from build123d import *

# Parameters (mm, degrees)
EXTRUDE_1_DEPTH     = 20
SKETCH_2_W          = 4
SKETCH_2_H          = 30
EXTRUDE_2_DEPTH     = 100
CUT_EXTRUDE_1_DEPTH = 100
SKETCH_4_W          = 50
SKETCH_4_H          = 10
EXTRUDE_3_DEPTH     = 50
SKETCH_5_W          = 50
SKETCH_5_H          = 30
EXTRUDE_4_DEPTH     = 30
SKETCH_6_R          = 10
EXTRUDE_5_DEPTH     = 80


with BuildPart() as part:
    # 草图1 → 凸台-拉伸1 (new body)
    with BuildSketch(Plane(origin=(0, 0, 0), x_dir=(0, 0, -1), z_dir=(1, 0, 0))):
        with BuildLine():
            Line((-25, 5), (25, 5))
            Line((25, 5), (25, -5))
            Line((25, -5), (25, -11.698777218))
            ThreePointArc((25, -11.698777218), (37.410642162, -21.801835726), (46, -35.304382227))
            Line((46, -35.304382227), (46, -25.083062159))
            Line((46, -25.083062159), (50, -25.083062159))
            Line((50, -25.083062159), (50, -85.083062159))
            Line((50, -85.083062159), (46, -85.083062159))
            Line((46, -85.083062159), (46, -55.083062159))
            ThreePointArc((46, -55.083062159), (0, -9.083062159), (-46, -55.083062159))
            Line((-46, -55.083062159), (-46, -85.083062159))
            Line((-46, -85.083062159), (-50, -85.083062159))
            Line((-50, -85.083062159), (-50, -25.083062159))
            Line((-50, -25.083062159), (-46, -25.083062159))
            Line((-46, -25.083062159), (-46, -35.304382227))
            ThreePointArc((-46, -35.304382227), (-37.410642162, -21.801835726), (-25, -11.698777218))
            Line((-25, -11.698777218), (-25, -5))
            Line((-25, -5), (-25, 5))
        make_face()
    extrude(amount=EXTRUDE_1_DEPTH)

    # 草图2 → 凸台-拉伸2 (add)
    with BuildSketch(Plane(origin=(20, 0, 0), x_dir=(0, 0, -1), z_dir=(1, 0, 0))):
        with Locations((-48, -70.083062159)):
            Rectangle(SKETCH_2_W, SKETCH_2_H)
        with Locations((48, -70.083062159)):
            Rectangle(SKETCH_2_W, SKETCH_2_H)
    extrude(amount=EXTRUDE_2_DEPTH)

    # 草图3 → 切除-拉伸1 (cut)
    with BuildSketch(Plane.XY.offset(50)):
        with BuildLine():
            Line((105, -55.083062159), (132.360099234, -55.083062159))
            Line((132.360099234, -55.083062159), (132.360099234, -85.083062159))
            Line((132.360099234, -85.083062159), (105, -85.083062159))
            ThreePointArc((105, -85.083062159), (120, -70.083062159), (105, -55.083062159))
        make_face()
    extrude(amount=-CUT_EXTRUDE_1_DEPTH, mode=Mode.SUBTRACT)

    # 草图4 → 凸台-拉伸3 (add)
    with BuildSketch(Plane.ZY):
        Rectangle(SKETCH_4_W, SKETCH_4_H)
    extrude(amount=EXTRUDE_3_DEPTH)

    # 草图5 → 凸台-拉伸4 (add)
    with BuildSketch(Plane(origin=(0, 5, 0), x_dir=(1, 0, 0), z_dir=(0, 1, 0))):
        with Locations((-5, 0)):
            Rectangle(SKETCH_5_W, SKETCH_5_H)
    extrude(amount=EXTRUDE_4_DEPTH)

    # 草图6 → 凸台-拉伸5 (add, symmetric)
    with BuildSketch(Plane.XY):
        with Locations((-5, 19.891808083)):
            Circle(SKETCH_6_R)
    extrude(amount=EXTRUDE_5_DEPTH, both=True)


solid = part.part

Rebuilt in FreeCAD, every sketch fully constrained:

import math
import FreeCAD as App
import Part
import Sketcher
from FreeCAD import Vector
Q = App.Units.Quantity

doc = App.newDocument("Part")
body = doc.addObject("PartDesign::Body", "Body")

sketch1 = body.newObject("Sketcher::SketchObject", "Sketch")
sketch1.AttachmentSupport = (doc.getObject("YZ_Plane"), [""])
sketch1.MapMode = "FlatFace"
sketch1.addGeometry([
    Part.LineSegment(Vector(5, -25, 0), Vector(5, 25, 0)),
    Part.LineSegment(Vector(5, 25, 0), Vector(-11.7, 25, 0)),
    Part.ArcOfCircle(Part.Circle(Vector(-55.1, 0, 0), Vector(0, 0, 1), 50.1), math.radians(30), math.radians(67)),
    Part.LineSegment(Vector(-35.3, 46, 0), Vector(-25.1, 46, 0)),
    Part.LineSegment(Vector(-25.1, 46, 0), Vector(-25.1, 50, 0)),
    Part.LineSegment(Vector(-25.1, 50, 0), Vector(-85.1, 50, 0)),
    Part.LineSegment(Vector(-85.1, 50, 0), Vector(-85.1, 46, 0)),
    Part.LineSegment(Vector(-85.1, 46, 0), Vector(-55.1, 46, 0)),
    Part.ArcOfCircle(Part.Circle(Vector(-55.1, 0, 0), Vector(0, 0, 1), 46), math.radians(-90), math.radians(90)),
    Part.LineSegment(Vector(-55.1, -46, 0), Vector(-85.1, -46, 0)),
    Part.LineSegment(Vector(-85.1, -46, 0), Vector(-85.1, -50, 0)),
    Part.LineSegment(Vector(-85.1, -50, 0), Vector(-25.1, -50, 0)),
    Part.LineSegment(Vector(-25.1, -50, 0), Vector(-25.1, -46, 0)),
    Part.LineSegment(Vector(-25.1, -46, 0), Vector(-35.3, -46, 0)),
    Part.ArcOfCircle(Part.Circle(Vector(-55.1, 0, 0), Vector(0, 0, 1), 50.1), math.radians(-67), math.radians(-30)),
    Part.LineSegment(Vector(-11.7, -25, 0), Vector(5, -25, 0)),
], False)
sketch1.addConstraint([
    Sketcher.Constraint("Coincident", 0, 2, 1, 1),
    Sketcher.Constraint("Coincident", 1, 2, 2, 1),
    Sketcher.Constraint("Coincident", 2, 2, 3, 1),
    Sketcher.Constraint("Coincident", 3, 2, 4, 1),
    Sketcher.Constraint("Coincident", 4, 2, 5, 1),
    Sketcher.Constraint("Coincident", 5, 2, 6, 1),
    Sketcher.Constraint("Coincident", 6, 2, 7, 1),
    Sketcher.Constraint("Tangent", 7, 2, 8, 2),
    Sketcher.Constraint("Tangent", 8, 1, 9, 1),
    Sketcher.Constraint("Coincident", 9, 2, 10, 1),
    Sketcher.Constraint("Coincident", 10, 2, 11, 1),
    Sketcher.Constraint("Coincident", 11, 2, 12, 1),
    Sketcher.Constraint("Coincident", 12, 2, 13, 1),
    Sketcher.Constraint("Coincident", 13, 2, 14, 1),
    Sketcher.Constraint("Coincident", 14, 2, 15, 1),
    Sketcher.Constraint("Coincident", 15, 2, 0, 1),
    Sketcher.Constraint("Vertical", 0),
    Sketcher.Constraint("Horizontal", 1),
    Sketcher.Constraint("Horizontal", 3),
    Sketcher.Constraint("Vertical", 4),
    Sketcher.Constraint("Horizontal", 5),
    Sketcher.Constraint("Vertical", 6),
    Sketcher.Constraint("Horizontal", 7),
    Sketcher.Constraint("Horizontal", 9),
    Sketcher.Constraint("Vertical", 10),
    Sketcher.Constraint("Horizontal", 11),
    Sketcher.Constraint("Vertical", 12),
    Sketcher.Constraint("Horizontal", 13),
    Sketcher.Constraint("Horizontal", 15),
    Sketcher.Constraint("Coincident", 8, 3, 2, 3),
    Sketcher.Constraint("Coincident", 14, 3, 2, 3),
    Sketcher.Constraint("Equal", 2, 14),
    Sketcher.Constraint("Symmetric", 6, 2, 9, 2, -1),
    Sketcher.Constraint("Symmetric", 4, 2, 11, 2, -1),
    Sketcher.Constraint("Horizontal", 3, 2, 6, 2),
    Sketcher.Constraint("Horizontal", 9, 2, 12, 2),
    Sketcher.Constraint("Vertical", 1, 2, 14, 2),
    Sketcher.Constraint("Radius", 8, Q("46 mm")),
    Sketcher.Constraint("DistanceX", 5, 2, 5, 1, Q("60 mm")),
    Sketcher.Constraint("DistanceX", 7, 1, 7, 2, Q("30 mm")),
    Sketcher.Constraint("DistanceY", 0, 1, 0, 2, Q("50 mm")),
    Sketcher.Constraint("DistanceY", 4, 1, 4, 2, Q("4 mm")),
    Sketcher.Constraint("DistanceX", -1, 1, 0, 2, Q("5 mm")),
    Sketcher.Constraint("Radius", 2, Q("50.07191 mm")),
    Sketcher.Constraint("DistanceX", 1, 2, 1, 1, Q("16.698777 mm")),
])
pad1 = body.newObject("PartDesign::Pad", "Pad")
pad1.Profile = sketch1
pad1.Length = 20

sketch2 = body.newObject("Sketcher::SketchObject", "Sketch001")
sketch2.AttachmentSupport = (doc.getObject("YZ_Plane"), [""])
sketch2.MapMode = "FlatFace"
sketch2.AttachmentOffset = App.Placement(Vector(0, 0, 20), App.Rotation())
sketch2.addGeometry([
    Part.LineSegment(Vector(-55.1, 50, 0), Vector(-85.1, 50, 0)),
    Part.LineSegment(Vector(-85.1, 50, 0), Vector(-85.1, 46, 0)),
    Part.LineSegment(Vector(-85.1, 46, 0), Vector(-55.1, 46, 0)),
    Part.LineSegment(Vector(-55.1, 46, 0), Vector(-55.1, 50, 0)),
    Part.LineSegment(Vector(-55.1, -46, 0), Vector(-85.1, -46, 0)),
    Part.LineSegment(Vector(-85.1, -46, 0), Vector(-85.1, -50, 0)),
    Part.LineSegment(Vector(-85.1, -50, 0), Vector(-55.1, -50, 0)),
    Part.LineSegment(Vector(-55.1, -50, 0), Vector(-55.1, -46, 0)),
], False)
sketch2.addConstraint([
    Sketcher.Constraint("Coincident", 0, 2, 1, 1),
    Sketcher.Constraint("Coincident", 1, 2, 2, 1),
    Sketcher.Constraint("Coincident", 2, 2, 3, 1),
    Sketcher.Constraint("Coincident", 3, 2, 0, 1),
    Sketcher.Constraint("Coincident", 4, 2, 5, 1),
    Sketcher.Constraint("Coincident", 5, 2, 6, 1),
    Sketcher.Constraint("Coincident", 6, 2, 7, 1),
    Sketcher.Constraint("Coincident", 7, 2, 4, 1),
    Sketcher.Constraint("Horizontal", 0),
    Sketcher.Constraint("Vertical", 1),
    Sketcher.Constraint("Horizontal", 2),
    Sketcher.Constraint("Vertical", 3),
    Sketcher.Constraint("Horizontal", 4),
    Sketcher.Constraint("Vertical", 5),
    Sketcher.Constraint("Horizontal", 6),
    Sketcher.Constraint("Vertical", 7),
    Sketcher.Constraint("Symmetric", 1, 2, 4, 2, -1),
    Sketcher.Constraint("Symmetric", 3, 2, 6, 2, -1),
    Sketcher.Constraint("DistanceX", 0, 2, 0, 1, Q("30 mm")),
    Sketcher.Constraint("DistanceY", 1, 2, 1, 1, Q("4 mm")),
    Sketcher.Constraint("DistanceY", -1, 1, 0, 2, Q("50 mm")),
    Sketcher.Constraint("DistanceX", 0, 2, -1, 1, Q("85.083062 mm")),
])
pad2 = body.newObject("PartDesign::Pad", "Pad001")
pad2.Profile = sketch2
pad2.Length = 100

sketch3 = body.newObject("Sketcher::SketchObject", "Sketch002")
sketch3.AttachmentSupport = (doc.getObject("XY_Plane"), [""])
sketch3.MapMode = "FlatFace"
sketch3.AttachmentOffset = App.Placement(Vector(0, 0, 50), App.Rotation())
sketch3.addGeometry([
    Part.LineSegment(Vector(132, -55, 0), Vector(105, -55, 0)),
    Part.ArcOfCircle(Part.Circle(Vector(105, -70, 0), Vector(0, 0, 1), 15), math.radians(-90), math.radians(90)),
    Part.LineSegment(Vector(105, -85, 0), Vector(132, -85, 0)),
    Part.LineSegment(Vector(132, -85, 0), Vector(132, -55, 0)),
], False)
sketch3.addConstraint([
    Sketcher.Constraint("Tangent", 0, 2, 1, 2),
    Sketcher.Constraint("Tangent", 1, 1, 2, 1),
    Sketcher.Constraint("Coincident", 2, 2, 3, 1),
    Sketcher.Constraint("Coincident", 3, 2, 0, 1),
    Sketcher.Constraint("Horizontal", 0),
    Sketcher.Constraint("Horizontal", 2),
    Sketcher.Constraint("Vertical", 3),
    Sketcher.Constraint("Radius", 1, Q("15 mm")),
    Sketcher.Constraint("DistanceX", -1, 1, 1, 3, Q("105 mm")),
    Sketcher.Constraint("DistanceX", 0, 2, 0, 1, Q("27.360099 mm")),
    Sketcher.Constraint("DistanceY", 1, 3, -1, 1, Q("70.083062 mm")),
])
pocket1 = body.newObject("PartDesign::Pocket", "Pocket")
pocket1.Profile = sketch3
pocket1.Length = 100

sketch4 = body.newObject("Sketcher::SketchObject", "Sketch003")
sketch4.AttachmentSupport = (doc.getObject("YZ_Plane"), [""])
sketch4.MapMode = "FlatFace"
sketch4.addGeometry([
    Part.LineSegment(Vector(5, -25, 0), Vector(-5, -25, 0)),
    Part.LineSegment(Vector(-5, -25, 0), Vector(-5, 25, 0)),
    Part.LineSegment(Vector(-5, 25, 0), Vector(5, 25, 0)),
    Part.LineSegment(Vector(5, 25, 0), Vector(5, -25, 0)),
], False)
sketch4.addConstraint([
    Sketcher.Constraint("Coincident", 0, 2, 1, 1),
    Sketcher.Constraint("Coincident", 1, 2, 2, 1),
    Sketcher.Constraint("Coincident", 2, 2, 3, 1),
    Sketcher.Constraint("Coincident", 3, 2, 0, 1),
    Sketcher.Constraint("Horizontal", 0),
    Sketcher.Constraint("Vertical", 1),
    Sketcher.Constraint("Horizontal", 2),
    Sketcher.Constraint("Vertical", 3),
    Sketcher.Constraint("Symmetric", 0, 2, 2, 2, -1, 1),
    Sketcher.Constraint("DistanceX", 0, 2, 0, 1, Q("10 mm")),
    Sketcher.Constraint("DistanceY", 1, 1, 1, 2, Q("50 mm")),
])
pad3 = body.newObject("PartDesign::Pad", "Pad002")
pad3.Profile = sketch4
pad3.Length = 50
pad3.Reversed = True

sketch5 = body.newObject("Sketcher::SketchObject", "Sketch004")
sketch5.AttachmentSupport = (doc.getObject("XZ_Plane"), [""])
sketch5.MapMode = "FlatFace"
sketch5.AttachmentOffset = App.Placement(Vector(0, 0, -5), App.Rotation())
sketch5.addGeometry([
    Part.LineSegment(Vector(-30, -15, 0), Vector(-30, 15, 0)),
    Part.LineSegment(Vector(-30, 15, 0), Vector(20, 15, 0)),
    Part.LineSegment(Vector(20, 15, 0), Vector(20, -15, 0)),
    Part.LineSegment(Vector(20, -15, 0), Vector(-30, -15, 0)),
], False)
sketch5.addConstraint([
    Sketcher.Constraint("Coincident", 0, 2, 1, 1),
    Sketcher.Constraint("Coincident", 1, 2, 2, 1),
    Sketcher.Constraint("Coincident", 2, 2, 3, 1),
    Sketcher.Constraint("Coincident", 3, 2, 0, 1),
    Sketcher.Constraint("Vertical", 0),
    Sketcher.Constraint("Horizontal", 1),
    Sketcher.Constraint("Vertical", 2),
    Sketcher.Constraint("Horizontal", 3),
    Sketcher.Constraint("DistanceX", 1, 1, 1, 2, Q("50 mm")),
    Sketcher.Constraint("DistanceY", 0, 1, 0, 2, Q("30 mm")),
    Sketcher.Constraint("DistanceX", 0, 2, -1, 1, Q("30 mm")),
    Sketcher.Constraint("DistanceY", -1, 1, 0, 2, Q("15 mm")),
])
pad4 = body.newObject("PartDesign::Pad", "Pad003")
pad4.Profile = sketch5
pad4.Length = 30
pad4.Reversed = True

sketch6 = body.newObject("Sketcher::SketchObject", "Sketch005")
sketch6.AttachmentSupport = (doc.getObject("XY_Plane"), [""])
sketch6.MapMode = "FlatFace"
sketch6.addGeometry(Part.Circle(Vector(-5, 20, 0), Vector(0, 0, 1), 10), False)
sketch6.addConstraint([
    Sketcher.Constraint("Diameter", 0, Q("20 mm")),
    Sketcher.Constraint("DistanceX", 0, 3, -1, 1, Q("5 mm")),
    Sketcher.Constraint("DistanceY", -1, 1, 0, 3, Q("19.891808 mm")),
])
pad5 = body.newObject("PartDesign::Pad", "Pad004")
pad5.Profile = sketch6
pad5.Length = 160
pad5.Midplane = True

doc.recompute()
